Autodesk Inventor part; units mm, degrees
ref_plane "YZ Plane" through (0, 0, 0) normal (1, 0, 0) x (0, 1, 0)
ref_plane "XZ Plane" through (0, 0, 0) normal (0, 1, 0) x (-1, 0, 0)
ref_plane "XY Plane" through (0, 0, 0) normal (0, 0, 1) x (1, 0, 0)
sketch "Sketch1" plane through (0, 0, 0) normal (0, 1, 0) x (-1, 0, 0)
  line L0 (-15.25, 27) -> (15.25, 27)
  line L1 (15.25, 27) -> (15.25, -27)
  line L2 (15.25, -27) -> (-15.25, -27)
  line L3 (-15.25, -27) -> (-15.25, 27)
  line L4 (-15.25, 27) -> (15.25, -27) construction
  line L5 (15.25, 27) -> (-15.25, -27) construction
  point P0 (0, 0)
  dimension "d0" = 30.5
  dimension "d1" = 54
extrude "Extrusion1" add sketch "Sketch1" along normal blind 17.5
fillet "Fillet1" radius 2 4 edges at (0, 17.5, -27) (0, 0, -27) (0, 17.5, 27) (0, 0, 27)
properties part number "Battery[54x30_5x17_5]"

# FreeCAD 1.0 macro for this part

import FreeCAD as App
import Part
import Sketcher
Q = App.Units.Quantity


def edges_at(feature, points):
    """Names of the edges that pass closest to the given points."""
    edges = feature.Shape.Edges
    near = lambda p: min(range(len(edges)), key=lambda i: edges[i].distToShape(Part.Vertex(*p))[0])
    return sorted({f"Edge{near(p) + 1}" for p in points})

doc = App.newDocument("Part")
body = doc.addObject("PartDesign::Body", "Body")

sketch1 = doc.addObject("Sketcher::SketchObject", "Sketch")
body.addObject(sketch1)
sketch1.AttachmentSupport = (doc.XZ_Plane, [""])
sketch1.MapMode = "FlatFace"
sketch1.addGeometry([
    Part.LineSegment(App.Vector(-15, 27, 0), App.Vector(15, 27, 0)),
    Part.LineSegment(App.Vector(15, 27, 0), App.Vector(15, -27, 0)),
    Part.LineSegment(App.Vector(15, -27, 0), App.Vector(-15, -27, 0)),
    Part.LineSegment(App.Vector(-15, -27, 0), App.Vector(-15, 27, 0)),
], False)
sketch1.addConstraint([
    Sketcher.Constraint("Coincident", 0, 2, 1, 1),
    Sketcher.Constraint("Coincident", 1, 2, 2, 1),
    Sketcher.Constraint("Coincident", 2, 2, 3, 1),
    Sketcher.Constraint("Coincident", 3, 2, 0, 1),
    Sketcher.Constraint("Horizontal", 0),
    Sketcher.Constraint("Vertical", 1),
    Sketcher.Constraint("Horizontal", 2),
    Sketcher.Constraint("Vertical", 3),
    Sketcher.Constraint("Symmetric", 0, 2, 2, 2, -1, 1),
    Sketcher.Constraint("DistanceY", 1, 2, 1, 1, Q("54 mm")),
    Sketcher.Constraint("DistanceX", 0, 1, 0, 2, Q("30.5 mm")),
])
pad1 = doc.addObject("PartDesign::Pad", "Pad")
body.addObject(pad1)
pad1.Profile = sketch1
pad1.Length = 17.5
pad1.Reversed = True
doc.recompute()

fillet = doc.addObject("PartDesign::Fillet", "Fillet")
body.addObject(fillet)
fillet.Base = (pad1, edges_at(pad1, [
    (0, 17.5, -27),
    (0, 0, -27),
    (0, 17.5, 27),
    (0, 0, 27),
]))
fillet.Radius = 2

doc.recompute()
